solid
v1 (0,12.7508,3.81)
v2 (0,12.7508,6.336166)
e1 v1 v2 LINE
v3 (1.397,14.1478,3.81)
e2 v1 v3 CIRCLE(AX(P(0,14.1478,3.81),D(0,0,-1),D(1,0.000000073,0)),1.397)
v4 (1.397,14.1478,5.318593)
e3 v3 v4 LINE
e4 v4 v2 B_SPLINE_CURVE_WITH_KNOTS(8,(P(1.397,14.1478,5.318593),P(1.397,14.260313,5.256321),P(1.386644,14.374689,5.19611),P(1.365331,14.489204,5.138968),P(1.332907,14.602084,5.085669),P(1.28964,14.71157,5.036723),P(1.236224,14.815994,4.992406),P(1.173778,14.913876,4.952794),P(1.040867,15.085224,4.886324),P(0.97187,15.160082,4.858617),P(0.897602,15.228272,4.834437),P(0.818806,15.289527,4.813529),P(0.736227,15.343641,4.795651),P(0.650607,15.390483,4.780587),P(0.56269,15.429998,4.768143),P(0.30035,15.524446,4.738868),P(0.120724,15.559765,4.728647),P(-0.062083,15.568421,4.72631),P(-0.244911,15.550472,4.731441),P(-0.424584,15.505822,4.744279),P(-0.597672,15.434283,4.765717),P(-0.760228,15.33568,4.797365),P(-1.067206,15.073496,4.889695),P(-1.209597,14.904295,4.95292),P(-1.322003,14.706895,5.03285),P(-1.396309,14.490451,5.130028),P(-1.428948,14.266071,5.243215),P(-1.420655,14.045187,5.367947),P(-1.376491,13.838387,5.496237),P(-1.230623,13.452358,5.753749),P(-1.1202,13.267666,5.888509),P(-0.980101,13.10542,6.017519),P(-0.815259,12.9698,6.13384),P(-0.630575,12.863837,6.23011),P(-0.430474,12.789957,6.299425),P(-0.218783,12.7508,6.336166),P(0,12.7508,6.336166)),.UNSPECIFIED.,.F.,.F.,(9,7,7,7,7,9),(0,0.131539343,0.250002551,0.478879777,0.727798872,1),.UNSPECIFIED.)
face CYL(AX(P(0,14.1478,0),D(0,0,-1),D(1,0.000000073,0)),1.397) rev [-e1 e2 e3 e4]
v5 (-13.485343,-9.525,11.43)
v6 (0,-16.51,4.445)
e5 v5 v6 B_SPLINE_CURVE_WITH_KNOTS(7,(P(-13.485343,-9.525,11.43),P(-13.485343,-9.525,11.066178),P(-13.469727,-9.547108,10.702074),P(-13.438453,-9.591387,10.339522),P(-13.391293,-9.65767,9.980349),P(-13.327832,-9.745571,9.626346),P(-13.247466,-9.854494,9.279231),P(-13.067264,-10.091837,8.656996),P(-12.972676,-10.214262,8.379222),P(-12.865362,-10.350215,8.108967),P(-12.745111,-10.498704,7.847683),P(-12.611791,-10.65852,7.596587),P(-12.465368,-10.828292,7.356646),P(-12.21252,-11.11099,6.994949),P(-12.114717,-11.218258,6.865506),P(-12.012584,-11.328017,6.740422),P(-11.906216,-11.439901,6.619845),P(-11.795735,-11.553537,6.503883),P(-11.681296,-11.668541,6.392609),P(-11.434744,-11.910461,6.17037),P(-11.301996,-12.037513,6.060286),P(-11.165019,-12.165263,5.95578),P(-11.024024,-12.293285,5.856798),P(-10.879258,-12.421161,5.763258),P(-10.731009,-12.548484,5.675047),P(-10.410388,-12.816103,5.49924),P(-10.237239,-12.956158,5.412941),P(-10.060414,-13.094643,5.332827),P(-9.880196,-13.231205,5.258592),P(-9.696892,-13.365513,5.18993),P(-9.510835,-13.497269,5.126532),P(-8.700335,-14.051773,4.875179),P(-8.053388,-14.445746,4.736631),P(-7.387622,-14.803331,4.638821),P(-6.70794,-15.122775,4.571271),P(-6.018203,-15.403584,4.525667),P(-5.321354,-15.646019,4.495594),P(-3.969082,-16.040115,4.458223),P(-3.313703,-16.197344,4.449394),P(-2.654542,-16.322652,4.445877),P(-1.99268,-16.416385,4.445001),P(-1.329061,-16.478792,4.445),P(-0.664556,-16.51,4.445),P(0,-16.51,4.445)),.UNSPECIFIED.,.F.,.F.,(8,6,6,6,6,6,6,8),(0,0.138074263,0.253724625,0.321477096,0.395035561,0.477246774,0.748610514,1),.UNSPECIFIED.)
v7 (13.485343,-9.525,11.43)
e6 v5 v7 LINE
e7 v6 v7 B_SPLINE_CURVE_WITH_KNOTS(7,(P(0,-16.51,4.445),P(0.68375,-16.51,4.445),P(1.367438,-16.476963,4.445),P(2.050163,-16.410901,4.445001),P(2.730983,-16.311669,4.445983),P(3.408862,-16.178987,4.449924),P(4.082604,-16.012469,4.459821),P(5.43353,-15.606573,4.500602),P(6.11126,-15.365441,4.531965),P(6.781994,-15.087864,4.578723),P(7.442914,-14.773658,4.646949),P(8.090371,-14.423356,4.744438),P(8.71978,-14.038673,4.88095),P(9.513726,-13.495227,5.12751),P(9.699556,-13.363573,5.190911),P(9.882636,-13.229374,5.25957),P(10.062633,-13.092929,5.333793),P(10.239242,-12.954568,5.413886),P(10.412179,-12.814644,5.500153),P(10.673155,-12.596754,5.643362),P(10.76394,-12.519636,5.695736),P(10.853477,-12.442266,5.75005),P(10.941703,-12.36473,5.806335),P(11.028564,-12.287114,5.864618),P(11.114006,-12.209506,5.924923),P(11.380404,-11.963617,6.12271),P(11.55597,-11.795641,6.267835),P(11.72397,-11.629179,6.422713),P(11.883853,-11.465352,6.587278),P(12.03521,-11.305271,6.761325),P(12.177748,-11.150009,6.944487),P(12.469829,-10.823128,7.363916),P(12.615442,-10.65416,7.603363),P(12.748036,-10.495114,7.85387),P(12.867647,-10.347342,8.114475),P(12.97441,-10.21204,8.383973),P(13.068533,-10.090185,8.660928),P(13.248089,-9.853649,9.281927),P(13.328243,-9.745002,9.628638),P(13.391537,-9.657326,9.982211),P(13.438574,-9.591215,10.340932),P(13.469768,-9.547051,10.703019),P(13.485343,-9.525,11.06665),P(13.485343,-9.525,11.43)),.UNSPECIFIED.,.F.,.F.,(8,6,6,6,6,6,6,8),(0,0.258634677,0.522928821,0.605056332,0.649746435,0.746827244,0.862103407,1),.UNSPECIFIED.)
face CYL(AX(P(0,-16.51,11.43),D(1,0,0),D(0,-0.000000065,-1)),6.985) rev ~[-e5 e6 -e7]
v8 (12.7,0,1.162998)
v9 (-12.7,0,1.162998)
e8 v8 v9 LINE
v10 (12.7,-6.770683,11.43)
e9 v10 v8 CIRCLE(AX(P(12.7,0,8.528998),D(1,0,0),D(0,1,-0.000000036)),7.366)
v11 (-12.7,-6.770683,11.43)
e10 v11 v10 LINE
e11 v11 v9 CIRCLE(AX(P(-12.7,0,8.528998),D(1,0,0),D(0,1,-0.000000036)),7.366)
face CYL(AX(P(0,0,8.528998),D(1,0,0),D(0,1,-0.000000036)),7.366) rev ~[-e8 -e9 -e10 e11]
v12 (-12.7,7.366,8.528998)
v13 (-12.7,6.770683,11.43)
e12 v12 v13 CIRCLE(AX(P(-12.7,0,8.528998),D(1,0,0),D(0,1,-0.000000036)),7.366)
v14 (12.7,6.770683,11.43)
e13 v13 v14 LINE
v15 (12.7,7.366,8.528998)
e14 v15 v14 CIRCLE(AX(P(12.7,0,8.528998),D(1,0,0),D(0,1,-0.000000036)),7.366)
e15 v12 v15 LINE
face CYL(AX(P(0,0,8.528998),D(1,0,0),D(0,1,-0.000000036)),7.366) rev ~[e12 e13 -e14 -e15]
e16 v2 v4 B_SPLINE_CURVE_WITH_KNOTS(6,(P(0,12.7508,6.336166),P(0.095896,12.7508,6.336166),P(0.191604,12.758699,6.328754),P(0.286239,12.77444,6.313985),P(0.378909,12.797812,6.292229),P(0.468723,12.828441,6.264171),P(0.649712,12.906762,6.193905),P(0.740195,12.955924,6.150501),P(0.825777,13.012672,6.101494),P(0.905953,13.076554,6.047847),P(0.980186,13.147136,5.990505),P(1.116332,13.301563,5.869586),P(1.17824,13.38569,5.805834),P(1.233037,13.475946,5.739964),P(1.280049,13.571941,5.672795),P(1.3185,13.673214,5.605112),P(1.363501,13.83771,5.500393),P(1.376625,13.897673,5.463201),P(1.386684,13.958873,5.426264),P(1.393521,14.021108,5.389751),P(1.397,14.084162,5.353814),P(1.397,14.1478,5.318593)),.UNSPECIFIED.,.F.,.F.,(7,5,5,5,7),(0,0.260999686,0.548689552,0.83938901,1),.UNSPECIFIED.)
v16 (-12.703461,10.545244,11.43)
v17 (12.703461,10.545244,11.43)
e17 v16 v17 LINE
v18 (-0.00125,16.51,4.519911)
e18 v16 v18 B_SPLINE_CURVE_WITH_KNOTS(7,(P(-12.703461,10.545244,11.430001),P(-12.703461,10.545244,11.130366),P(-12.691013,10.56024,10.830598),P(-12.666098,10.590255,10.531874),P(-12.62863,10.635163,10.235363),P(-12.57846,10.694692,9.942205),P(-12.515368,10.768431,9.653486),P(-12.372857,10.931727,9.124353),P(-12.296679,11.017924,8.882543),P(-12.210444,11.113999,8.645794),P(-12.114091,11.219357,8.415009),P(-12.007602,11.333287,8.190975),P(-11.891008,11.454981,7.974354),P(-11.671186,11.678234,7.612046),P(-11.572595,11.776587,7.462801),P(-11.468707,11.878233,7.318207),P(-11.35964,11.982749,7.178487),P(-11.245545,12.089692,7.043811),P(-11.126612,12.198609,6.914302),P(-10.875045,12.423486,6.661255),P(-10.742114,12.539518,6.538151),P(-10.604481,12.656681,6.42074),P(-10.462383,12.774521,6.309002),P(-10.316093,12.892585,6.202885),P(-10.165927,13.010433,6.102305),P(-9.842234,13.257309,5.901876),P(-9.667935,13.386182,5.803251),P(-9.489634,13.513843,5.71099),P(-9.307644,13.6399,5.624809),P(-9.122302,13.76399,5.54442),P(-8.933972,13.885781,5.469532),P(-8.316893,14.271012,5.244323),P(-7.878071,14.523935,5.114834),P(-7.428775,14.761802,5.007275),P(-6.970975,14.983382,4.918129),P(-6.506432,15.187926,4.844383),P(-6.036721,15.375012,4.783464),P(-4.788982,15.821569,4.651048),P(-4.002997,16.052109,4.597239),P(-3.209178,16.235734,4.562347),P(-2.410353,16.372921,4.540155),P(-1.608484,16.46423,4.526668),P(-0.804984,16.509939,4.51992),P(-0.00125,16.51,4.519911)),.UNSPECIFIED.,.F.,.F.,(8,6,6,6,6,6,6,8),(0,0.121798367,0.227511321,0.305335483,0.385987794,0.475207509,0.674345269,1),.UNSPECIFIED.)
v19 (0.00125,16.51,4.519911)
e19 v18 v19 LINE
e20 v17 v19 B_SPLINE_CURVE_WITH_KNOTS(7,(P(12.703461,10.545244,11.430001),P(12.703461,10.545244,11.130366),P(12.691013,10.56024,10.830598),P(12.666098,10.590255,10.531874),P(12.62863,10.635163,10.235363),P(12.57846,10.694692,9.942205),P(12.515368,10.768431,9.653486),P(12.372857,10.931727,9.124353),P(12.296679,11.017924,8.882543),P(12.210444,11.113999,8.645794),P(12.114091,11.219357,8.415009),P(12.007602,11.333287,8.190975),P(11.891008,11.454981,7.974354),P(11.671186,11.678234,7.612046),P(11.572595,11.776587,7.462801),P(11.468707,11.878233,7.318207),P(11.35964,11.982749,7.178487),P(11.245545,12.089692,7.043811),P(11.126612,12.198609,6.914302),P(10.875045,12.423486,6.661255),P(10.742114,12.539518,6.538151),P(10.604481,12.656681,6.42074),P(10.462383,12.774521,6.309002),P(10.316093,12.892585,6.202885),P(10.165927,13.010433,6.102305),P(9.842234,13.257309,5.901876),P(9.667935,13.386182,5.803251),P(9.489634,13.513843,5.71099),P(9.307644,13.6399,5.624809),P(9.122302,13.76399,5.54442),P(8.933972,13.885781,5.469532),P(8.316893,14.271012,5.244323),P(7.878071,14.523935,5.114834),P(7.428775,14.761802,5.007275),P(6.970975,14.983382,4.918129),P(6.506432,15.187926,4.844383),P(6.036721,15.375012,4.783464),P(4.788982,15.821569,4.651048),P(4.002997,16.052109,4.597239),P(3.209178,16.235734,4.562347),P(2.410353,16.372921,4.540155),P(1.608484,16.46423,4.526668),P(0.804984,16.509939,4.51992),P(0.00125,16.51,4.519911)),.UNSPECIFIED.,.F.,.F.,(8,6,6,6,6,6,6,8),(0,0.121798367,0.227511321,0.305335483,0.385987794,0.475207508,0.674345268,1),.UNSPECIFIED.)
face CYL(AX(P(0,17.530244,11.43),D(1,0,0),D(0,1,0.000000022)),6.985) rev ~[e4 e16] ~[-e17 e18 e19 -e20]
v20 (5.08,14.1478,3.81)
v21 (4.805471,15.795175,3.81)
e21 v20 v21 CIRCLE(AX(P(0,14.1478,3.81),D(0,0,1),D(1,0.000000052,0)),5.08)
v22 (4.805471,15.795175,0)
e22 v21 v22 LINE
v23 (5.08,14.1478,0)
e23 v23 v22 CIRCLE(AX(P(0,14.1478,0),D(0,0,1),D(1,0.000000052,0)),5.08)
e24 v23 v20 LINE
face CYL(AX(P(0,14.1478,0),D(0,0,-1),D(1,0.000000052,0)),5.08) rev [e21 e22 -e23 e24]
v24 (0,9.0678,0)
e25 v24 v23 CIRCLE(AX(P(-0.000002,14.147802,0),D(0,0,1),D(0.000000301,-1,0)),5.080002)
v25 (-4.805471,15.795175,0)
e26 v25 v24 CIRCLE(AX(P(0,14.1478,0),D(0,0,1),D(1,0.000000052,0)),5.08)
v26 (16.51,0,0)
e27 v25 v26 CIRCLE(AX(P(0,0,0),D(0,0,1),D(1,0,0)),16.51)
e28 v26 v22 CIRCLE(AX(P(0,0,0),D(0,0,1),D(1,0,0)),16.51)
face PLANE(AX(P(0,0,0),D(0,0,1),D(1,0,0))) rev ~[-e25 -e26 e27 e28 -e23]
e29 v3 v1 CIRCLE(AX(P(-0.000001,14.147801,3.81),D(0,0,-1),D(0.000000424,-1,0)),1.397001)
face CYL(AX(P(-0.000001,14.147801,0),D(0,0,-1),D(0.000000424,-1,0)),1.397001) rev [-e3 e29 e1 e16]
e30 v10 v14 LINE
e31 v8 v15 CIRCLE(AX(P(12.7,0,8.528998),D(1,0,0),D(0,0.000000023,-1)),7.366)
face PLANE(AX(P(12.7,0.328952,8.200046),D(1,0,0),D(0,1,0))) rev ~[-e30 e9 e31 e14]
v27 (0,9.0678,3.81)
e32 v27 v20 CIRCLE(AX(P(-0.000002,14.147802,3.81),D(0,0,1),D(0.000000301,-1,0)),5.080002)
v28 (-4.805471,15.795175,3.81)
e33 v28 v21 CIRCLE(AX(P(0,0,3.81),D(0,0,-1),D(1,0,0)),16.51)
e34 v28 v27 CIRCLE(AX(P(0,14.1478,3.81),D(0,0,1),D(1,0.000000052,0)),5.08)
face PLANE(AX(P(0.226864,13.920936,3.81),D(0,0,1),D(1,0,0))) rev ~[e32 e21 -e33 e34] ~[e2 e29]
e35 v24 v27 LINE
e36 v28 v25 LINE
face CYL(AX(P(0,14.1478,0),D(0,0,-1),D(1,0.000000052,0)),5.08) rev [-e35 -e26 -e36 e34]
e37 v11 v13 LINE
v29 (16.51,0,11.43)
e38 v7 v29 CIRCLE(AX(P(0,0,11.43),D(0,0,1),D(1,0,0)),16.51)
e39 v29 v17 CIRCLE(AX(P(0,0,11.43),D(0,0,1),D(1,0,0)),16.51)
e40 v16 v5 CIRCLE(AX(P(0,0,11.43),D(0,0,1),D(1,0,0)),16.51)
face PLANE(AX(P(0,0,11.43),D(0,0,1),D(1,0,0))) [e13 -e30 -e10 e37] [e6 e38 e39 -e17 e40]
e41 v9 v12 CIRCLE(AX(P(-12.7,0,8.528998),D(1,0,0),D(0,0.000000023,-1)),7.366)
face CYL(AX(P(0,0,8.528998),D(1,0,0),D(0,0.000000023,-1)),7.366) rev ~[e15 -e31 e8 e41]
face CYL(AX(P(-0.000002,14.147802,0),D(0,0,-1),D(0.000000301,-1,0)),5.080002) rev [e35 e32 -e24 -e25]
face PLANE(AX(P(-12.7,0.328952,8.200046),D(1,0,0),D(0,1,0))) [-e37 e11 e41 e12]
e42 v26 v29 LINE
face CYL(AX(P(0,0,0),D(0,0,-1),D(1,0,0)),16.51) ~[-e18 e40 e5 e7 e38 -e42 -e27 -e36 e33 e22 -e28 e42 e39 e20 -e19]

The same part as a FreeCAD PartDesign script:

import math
import FreeCAD as App
import Part
import Sketcher

V = App.Vector
Q = App.Units.Quantity

doc = App.newDocument("Part")
body = doc.addObject("PartDesign::Body", "Body")

# Sketch on XY plane
sketch1 = body.newObject("Sketcher::SketchObject", "Sketch")
sketch1.AttachmentSupport = (doc.getObject("XY_Plane"), [""])
sketch1.MapMode = "FlatFace"
sketch1.addGeometry(Part.Circle(V(0, 0, 0), V(0, 0, 1), 17), False)
sketch1.addConstraint([
    Sketcher.Constraint("Coincident", 0, 3, -1, 1),
    Sketcher.Constraint("Diameter", 0, Q("1.3 in")),
])
pad1 = body.newObject("PartDesign::Pad", "Pad")
pad1.Profile = sketch1
pad1.Length = Q("0.45 in")

# Sketch on YZ plane
sketch2 = body.newObject("Sketcher::SketchObject", "Sketch001")
sketch2.AttachmentSupport = (doc.getObject("YZ_Plane"), [""])
sketch2.MapMode = "FlatFace"
sketch2.addGeometry([
    Part.ArcOfCircle(Part.Circle(V(0, 9, 0), V(0, 0, 1), 7), math.radians(-90), math.radians(0)),
    Part.ArcOfCircle(Part.Circle(V(0, 9, 0), V(0, 0, 1), 7), math.radians(0), math.radians(270)),
], False)
sketch2.addConstraint([
    Sketcher.Constraint("Tangent", 0, 1, 1, 2),
    Sketcher.Constraint("Coincident", 1, 1, 0, 2),
    Sketcher.Constraint("PointOnObject", 0, 3, -2),
    Sketcher.Constraint("PointOnObject", 0, 1, -2),
    Sketcher.Constraint("Horizontal", 0, 3, 1, 1),
    Sketcher.Constraint("Radius", 0, Q("0.29 in")),
    Sketcher.Constraint("DistanceY", -1, 1, 0, 3, 8.528998),
])
pocket1 = body.newObject("PartDesign::Pocket", "Pocket")
pocket1.Profile = sketch2
pocket1.Length = Q("1 in")
pocket1.Midplane = True

# Sketch on XY plane
sketch3 = body.newObject("Sketcher::SketchObject", "Sketch002")
sketch3.AttachmentSupport = (doc.getObject("XY_Plane"), [""])
sketch3.MapMode = "FlatFace"
sketch3.addGeometry([
    Part.ArcOfCircle(Part.Circle(V(0, 14, 0), V(0, 0, 1), 5), math.radians(-90), math.radians(0)),
    Part.ArcOfCircle(Part.Circle(V(0, 14, 0), V(0, 0, 1), 5), math.radians(0), math.radians(270)),
], False)
sketch3.addConstraint([
    Sketcher.Constraint("Tangent", 0, 1, 1, 2),
    Sketcher.Constraint("Coincident", 1, 1, 0, 2),
    Sketcher.Constraint("PointOnObject", 0, 3, -2),
    Sketcher.Constraint("PointOnObject", 0, 1, -2),
    Sketcher.Constraint("Horizontal", 0, 3, 1, 1),
    Sketcher.Constraint("Radius", 0, Q("0.2000001 in")),
    Sketcher.Constraint("DistanceY", -1, 1, 0, 3, Q("0.5570001 in")),
])
pocket2 = body.newObject("PartDesign::Pocket", "Pocket001")
pocket2.Profile = sketch3
pocket2.Length = Q("0.15 in")
pocket2.Reversed = True

# Sketch on XY plane
sketch4 = body.newObject("Sketcher::SketchObject", "Sketch003")
sketch4.AttachmentSupport = (doc.getObject("XY_Plane"), [""])
sketch4.MapMode = "FlatFace"
sketch4.addGeometry([
    Part.ArcOfCircle(Part.Circle(V(0, 14.1, 0), V(0, 0, 1), 1.4), math.radians(-90), math.radians(0)),
    Part.ArcOfCircle(Part.Circle(V(0, 14.1, 0), V(0, 0, 1), 1.4), math.radians(0), math.radians(270)),
], False)
sketch4.addConstraint([
    Sketcher.Constraint("Tangent", 0, 1, 1, 2),
    Sketcher.Constraint("Coincident", 1, 1, 0, 2),
    Sketcher.Constraint("PointOnObject", 0, 3, -2),
    Sketcher.Constraint("PointOnObject", 0, 1, -2),
    Sketcher.Constraint("Horizontal", 0, 3, 1, 1),
    Sketcher.Constraint("Radius", 0, Q("0.055 in")),
    Sketcher.Constraint("DistanceY", -1, 1, 0, 3, Q("0.557 in")),
])
pocket3 = body.newObject("PartDesign::Pocket", "Pocket002")
pocket3.Profile = sketch4
pocket3.Type = "ThroughAll"
pocket3.Reversed = True

# Sketch on YZ plane
sketch5 = body.newObject("Sketcher::SketchObject", "Sketch004")
sketch5.AttachmentSupport = (doc.getObject("YZ_Plane"), [""])
sketch5.MapMode = "FlatFace"
sketch5.addGeometry([
    Part.ArcOfCircle(Part.Circle(V(-17, 11, 0), V(0, 0, 1), 7), math.radians(-90), math.radians(0)),
    Part.ArcOfCircle(Part.Circle(V(-17, 11, 0), V(0, 0, 1), 7), math.radians(0), math.radians(270)),
], False)
sketch5.addConstraint([
    Sketcher.Constraint("Tangent", 0, 1, 1, 2),
    Sketcher.Constraint("Coincident", 1, 1, 0, 2),
    Sketcher.Constraint("Horizontal", 0, 3, 1, 1),
    Sketcher.Constraint("Vertical", 1, 3, 0, 1),
    Sketcher.Constraint("Radius", 0, Q("0.275 in")),
    Sketcher.Constraint("DistanceX", 0, 3, -1, 1, Q("0.65 in")),
    Sketcher.Constraint("DistanceY", -1, 1, 0, 3, Q("0.45 in")),
])
pocket4 = body.newObject("PartDesign::Pocket", "Pocket003")
pocket4.Profile = sketch5
pocket4.Length = Q("2 in")
pocket4.Midplane = True

# Sketch on YZ plane
sketch6 = body.newObject("Sketcher::SketchObject", "Sketch005")
sketch6.AttachmentSupport = (doc.getObject("YZ_Plane"), [""])
sketch6.MapMode = "FlatFace"
sketch6.addGeometry([
    Part.ArcOfCircle(Part.Circle(V(18, 11, 0), V(0, 0, 1), 7), math.radians(-98), math.radians(0)),
    Part.ArcOfCircle(Part.Circle(V(18, 11, 0), V(0, 0, 1), 7), math.radians(0), math.radians(262)),
], False)
sketch6.addConstraint([
    Sketcher.Constraint("Tangent", 0, 1, 1, 2),
    Sketcher.Constraint("Coincident", 1, 1, 0, 2),
    Sketcher.Constraint("Horizontal", 0, 3, 1, 1),
    Sketcher.Constraint("Radius", 0, Q("0.275 in")),
    Sketcher.Constraint("DistanceY", -1, 1, 0, 3, Q("0.45 in")),
    Sketcher.Constraint("DistanceX", -1, 1, 0, 1, Q("0.65 in")),
    Sketcher.Constraint("DistanceY", -1, 1, 0, 1, 4.519911),
])
pocket5 = body.newObject("PartDesign::Pocket", "Pocket004")
pocket5.Profile = sketch6
pocket5.Length = Q("2 in")
pocket5.Midplane = True

doc.recompute()
